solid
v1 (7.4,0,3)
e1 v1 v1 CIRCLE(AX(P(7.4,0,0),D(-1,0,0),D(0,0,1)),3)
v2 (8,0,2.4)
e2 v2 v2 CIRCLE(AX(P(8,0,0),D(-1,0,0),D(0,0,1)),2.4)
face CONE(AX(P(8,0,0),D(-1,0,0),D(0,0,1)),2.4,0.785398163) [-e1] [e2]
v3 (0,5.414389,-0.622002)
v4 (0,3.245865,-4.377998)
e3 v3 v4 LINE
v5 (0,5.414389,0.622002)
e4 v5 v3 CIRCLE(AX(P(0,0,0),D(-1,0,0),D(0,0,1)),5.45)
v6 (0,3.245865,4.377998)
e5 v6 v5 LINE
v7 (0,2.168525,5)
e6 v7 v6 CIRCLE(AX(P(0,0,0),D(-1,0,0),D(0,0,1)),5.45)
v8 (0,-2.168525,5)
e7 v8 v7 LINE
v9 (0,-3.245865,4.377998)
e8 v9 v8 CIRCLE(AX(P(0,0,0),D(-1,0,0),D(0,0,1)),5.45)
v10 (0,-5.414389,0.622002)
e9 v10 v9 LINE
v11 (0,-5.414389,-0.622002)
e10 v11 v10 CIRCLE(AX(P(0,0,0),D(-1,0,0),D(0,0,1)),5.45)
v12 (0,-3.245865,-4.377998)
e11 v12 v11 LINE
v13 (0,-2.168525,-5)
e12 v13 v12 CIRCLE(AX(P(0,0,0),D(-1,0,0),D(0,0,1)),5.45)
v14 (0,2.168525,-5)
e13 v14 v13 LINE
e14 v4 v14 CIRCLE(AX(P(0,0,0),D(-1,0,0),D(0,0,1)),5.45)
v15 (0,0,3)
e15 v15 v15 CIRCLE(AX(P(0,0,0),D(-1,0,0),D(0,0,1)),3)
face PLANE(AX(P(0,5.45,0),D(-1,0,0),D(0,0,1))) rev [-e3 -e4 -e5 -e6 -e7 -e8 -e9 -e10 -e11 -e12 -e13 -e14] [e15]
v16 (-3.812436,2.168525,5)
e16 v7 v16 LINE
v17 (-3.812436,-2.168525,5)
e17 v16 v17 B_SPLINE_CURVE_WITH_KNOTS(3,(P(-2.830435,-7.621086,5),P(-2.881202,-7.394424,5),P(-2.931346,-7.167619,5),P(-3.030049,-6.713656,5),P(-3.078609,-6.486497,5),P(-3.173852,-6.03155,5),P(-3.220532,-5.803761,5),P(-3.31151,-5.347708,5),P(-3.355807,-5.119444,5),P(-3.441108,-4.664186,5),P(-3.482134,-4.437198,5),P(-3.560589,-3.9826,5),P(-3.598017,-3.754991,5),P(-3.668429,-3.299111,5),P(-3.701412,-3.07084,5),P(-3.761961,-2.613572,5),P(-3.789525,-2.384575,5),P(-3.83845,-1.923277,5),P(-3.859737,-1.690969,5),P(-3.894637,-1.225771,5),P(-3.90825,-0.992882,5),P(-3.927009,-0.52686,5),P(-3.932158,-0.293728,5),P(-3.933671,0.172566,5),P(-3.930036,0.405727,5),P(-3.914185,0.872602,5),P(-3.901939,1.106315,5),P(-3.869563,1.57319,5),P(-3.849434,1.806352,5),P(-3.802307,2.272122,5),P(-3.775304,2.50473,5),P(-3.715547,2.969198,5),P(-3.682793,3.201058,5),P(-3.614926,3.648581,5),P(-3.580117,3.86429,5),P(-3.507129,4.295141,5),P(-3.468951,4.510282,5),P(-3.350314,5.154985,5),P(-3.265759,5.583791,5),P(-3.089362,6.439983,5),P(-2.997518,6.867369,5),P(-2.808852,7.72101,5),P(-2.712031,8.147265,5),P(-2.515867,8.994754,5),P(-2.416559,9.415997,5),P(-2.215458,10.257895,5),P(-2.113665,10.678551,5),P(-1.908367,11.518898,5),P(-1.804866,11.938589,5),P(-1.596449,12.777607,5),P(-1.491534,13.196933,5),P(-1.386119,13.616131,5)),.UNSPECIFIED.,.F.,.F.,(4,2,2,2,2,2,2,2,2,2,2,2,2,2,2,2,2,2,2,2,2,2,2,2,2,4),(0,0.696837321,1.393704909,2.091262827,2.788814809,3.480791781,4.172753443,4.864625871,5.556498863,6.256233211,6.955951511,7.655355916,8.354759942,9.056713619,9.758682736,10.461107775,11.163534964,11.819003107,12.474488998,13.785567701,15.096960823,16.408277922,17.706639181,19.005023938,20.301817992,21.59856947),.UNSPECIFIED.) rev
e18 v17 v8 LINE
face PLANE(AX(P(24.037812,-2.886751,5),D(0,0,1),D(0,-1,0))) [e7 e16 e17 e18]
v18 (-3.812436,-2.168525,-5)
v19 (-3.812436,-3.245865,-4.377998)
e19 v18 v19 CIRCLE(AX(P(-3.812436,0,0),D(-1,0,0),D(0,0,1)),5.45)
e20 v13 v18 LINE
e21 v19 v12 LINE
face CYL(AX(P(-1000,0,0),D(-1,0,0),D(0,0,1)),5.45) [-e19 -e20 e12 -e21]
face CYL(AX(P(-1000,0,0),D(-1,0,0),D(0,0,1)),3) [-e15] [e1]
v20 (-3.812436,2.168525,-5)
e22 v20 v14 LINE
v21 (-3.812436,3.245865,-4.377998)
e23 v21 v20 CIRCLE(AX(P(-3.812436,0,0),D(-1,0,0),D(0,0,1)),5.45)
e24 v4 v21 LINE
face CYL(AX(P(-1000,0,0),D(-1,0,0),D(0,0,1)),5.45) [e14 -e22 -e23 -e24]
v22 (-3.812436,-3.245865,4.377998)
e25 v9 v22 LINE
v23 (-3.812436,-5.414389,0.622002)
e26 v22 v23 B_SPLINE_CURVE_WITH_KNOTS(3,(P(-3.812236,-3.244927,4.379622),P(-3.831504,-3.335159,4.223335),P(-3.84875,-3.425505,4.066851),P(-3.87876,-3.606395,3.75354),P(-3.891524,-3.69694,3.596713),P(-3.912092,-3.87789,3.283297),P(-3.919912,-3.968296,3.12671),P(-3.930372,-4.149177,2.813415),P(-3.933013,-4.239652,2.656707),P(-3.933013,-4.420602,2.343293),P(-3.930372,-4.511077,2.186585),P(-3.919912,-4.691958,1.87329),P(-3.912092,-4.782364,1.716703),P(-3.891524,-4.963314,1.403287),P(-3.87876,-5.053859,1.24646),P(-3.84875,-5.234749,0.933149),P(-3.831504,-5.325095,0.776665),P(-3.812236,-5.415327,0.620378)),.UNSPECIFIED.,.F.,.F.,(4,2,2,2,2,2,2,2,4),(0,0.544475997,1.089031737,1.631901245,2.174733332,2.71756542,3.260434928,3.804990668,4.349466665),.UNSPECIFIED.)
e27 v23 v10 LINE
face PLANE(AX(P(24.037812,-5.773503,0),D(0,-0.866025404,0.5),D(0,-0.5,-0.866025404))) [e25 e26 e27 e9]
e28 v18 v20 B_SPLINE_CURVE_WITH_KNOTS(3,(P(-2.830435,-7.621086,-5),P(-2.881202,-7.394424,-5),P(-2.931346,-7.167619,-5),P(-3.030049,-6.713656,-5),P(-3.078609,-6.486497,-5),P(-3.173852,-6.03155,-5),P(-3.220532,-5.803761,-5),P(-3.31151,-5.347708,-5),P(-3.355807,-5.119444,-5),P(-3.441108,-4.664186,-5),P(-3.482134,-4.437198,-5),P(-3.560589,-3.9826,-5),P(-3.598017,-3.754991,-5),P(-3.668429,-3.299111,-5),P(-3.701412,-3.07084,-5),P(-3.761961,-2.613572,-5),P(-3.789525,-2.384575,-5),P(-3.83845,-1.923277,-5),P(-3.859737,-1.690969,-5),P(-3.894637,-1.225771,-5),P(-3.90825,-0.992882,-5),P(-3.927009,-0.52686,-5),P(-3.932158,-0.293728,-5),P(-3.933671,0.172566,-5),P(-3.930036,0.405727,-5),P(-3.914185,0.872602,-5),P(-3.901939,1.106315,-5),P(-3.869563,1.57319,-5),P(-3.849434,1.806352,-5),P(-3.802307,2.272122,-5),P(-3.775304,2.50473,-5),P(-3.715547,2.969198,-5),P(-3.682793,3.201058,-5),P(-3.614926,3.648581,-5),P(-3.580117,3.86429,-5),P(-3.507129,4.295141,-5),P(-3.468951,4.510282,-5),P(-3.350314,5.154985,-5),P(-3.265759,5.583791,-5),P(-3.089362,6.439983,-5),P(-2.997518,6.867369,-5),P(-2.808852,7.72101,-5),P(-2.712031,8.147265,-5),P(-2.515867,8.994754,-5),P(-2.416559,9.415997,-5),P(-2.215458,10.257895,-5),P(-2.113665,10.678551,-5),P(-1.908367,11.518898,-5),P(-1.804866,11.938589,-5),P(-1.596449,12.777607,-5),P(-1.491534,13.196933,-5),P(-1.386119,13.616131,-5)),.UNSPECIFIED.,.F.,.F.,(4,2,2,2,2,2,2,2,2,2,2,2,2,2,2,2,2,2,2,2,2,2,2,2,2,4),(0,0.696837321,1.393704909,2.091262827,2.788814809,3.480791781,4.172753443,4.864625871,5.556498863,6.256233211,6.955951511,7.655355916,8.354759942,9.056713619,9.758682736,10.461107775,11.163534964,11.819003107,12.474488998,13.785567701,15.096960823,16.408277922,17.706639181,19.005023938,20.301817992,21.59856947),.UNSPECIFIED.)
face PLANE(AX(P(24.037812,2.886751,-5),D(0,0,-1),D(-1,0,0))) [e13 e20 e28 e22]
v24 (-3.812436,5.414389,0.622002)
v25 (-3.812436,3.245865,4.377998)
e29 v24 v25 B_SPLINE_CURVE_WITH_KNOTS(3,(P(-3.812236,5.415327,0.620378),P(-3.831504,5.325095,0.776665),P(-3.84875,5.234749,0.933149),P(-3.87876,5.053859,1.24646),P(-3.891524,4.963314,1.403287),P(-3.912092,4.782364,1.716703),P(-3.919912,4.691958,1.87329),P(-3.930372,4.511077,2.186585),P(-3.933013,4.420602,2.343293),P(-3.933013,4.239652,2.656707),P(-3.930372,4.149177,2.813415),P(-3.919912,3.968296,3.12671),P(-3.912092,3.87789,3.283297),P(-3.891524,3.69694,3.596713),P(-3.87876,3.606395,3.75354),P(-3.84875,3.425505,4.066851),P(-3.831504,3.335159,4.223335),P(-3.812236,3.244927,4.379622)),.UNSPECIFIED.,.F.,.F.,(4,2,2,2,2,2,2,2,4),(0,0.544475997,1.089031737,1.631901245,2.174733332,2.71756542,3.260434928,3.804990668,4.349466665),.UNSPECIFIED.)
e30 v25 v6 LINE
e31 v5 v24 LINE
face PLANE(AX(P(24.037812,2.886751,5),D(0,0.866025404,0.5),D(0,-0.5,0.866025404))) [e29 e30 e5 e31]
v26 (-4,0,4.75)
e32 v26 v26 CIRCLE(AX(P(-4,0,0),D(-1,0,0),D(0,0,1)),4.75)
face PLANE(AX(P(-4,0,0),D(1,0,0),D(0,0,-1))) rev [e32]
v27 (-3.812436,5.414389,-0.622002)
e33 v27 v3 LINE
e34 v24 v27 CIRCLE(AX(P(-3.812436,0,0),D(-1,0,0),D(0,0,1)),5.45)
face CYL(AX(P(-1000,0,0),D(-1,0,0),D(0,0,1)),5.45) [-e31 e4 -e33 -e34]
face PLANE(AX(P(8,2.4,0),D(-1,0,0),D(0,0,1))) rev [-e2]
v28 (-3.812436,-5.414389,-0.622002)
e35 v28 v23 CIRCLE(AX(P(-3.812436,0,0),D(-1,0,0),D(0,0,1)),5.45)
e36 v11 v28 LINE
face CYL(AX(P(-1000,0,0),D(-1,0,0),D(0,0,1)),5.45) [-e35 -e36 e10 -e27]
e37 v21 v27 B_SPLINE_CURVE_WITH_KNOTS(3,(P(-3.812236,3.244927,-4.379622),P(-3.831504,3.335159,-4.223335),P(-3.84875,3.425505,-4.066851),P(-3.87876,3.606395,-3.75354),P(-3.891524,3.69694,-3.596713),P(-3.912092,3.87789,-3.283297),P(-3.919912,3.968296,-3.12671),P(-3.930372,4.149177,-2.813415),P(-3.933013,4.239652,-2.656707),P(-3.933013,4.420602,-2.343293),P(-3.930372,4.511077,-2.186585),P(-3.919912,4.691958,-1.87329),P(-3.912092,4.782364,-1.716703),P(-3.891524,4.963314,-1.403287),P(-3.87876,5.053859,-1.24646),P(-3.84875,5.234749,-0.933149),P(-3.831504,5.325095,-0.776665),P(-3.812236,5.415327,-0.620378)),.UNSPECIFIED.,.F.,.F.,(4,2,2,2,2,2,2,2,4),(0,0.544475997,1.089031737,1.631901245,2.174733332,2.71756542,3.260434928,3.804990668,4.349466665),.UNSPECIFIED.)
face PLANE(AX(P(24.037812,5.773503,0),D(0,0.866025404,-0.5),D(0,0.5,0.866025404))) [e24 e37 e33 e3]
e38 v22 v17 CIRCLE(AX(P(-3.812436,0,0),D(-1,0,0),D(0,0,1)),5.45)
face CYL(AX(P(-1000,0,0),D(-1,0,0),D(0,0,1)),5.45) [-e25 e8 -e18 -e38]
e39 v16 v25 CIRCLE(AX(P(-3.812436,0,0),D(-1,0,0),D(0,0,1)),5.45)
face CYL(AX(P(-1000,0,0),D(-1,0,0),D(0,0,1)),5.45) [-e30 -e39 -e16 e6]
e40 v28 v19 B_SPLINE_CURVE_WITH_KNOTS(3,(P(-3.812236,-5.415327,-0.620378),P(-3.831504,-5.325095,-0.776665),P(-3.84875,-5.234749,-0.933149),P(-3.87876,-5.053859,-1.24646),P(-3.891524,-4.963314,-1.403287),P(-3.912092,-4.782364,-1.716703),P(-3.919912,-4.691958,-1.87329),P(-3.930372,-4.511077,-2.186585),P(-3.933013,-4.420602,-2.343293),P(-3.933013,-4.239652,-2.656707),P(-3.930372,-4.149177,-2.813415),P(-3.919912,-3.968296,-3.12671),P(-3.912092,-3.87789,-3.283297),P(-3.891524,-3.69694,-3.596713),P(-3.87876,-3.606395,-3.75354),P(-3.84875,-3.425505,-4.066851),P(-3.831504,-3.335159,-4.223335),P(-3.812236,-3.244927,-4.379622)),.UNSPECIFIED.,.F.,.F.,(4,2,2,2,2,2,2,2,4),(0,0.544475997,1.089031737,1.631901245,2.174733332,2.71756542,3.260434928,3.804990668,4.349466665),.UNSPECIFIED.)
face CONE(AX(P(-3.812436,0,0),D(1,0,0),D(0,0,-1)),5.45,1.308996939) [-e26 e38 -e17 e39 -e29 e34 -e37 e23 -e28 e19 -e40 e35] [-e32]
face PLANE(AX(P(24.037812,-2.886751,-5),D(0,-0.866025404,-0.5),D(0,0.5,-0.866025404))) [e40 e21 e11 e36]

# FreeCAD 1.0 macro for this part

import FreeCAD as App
import Part
import Sketcher

V = App.Vector
Q = App.Units.Quantity


def add_polygon(sketch, points):
    """Adds a closed chain of lines whose ends are joined by coincident constraints."""
    first, n = sketch.GeometryCount, len(points)
    for a, b in zip(points, points[1:] + points[:1]):
        sketch.addGeometry(Part.LineSegment(App.Vector(*a, 0), App.Vector(*b, 0)), False)
    for i in range(n):
        sketch.addConstraint(Sketcher.Constraint("Coincident", first + i, 2, first + (i + 1) % n, 1))

doc = App.newDocument("Part")
body = doc.addObject("PartDesign::Body", "Body")

# Sketch on XY plane
sketch1 = body.newObject("Sketcher::SketchObject", "Sketch")
sketch1.AttachmentSupport = (doc.getObject("XY_Plane"), [""])
sketch1.MapMode = "FlatFace"
add_polygon(sketch1, [(-4, 4.8), (-4, 0), (8, 0), (8, 2.4), (7.4, 3), (0, 3), (0, 5.5), (-3.8, 5.5)])  # lines 0-7
sketch1.addConstraint([
    Sketcher.Constraint("Vertical", 0),
    Sketcher.Constraint("Horizontal", 1),
    Sketcher.Constraint("Vertical", 2),
    Sketcher.Constraint("Horizontal", 4),
    Sketcher.Constraint("Vertical", 5),
    Sketcher.Constraint("Horizontal", 6),
    Sketcher.Constraint("PointOnObject", 0, 2, -1),
    Sketcher.Constraint("PointOnObject", 4, 2, -2),
    Sketcher.Constraint("DistanceX", 1, 1, 1, 2, Q("12 mm")),
    Sketcher.Constraint("Angle", 3, Q("135 deg")),
    Sketcher.Constraint("Angle", 7, Q("-105 deg")),
    Sketcher.Constraint("DistanceX", 4, 2, 4, 1, Q("7.4 mm")),
    Sketcher.Constraint("DistanceY", 2, 1, 2, 2, Q("2.4 mm")),
    Sketcher.Constraint("DistanceX", 0, 2, -1, 1, Q("4 mm")),
    Sketcher.Constraint("DistanceY", 0, 2, 0, 1, Q("4.75 mm")),
    Sketcher.Constraint("DistanceY", 5, 1, 5, 2, Q("2.45 mm")),
])
revolution = body.newObject("PartDesign::Revolution", "Revolution")
revolution.Profile = sketch1
revolution.ReferenceAxis = (sketch1, ["H_Axis"])
revolution.Angle = 360

# Sketch on YZ plane
sketch2 = body.newObject("Sketcher::SketchObject", "Sketch001")
sketch2.AttachmentSupport = (doc.getObject("YZ_Plane"), [""])
sketch2.MapMode = "FlatFace"
sketch2.AttachmentOffset = App.Placement(V(0, 0, -4), App.Rotation())
add_polygon(sketch2, [(8, -8), (-8, -8), (-8, 8), (8, 8)])  # lines 0-3
add_polygon(sketch2, [(3, -5), (6, 0), (3, 5), (-3, 5), (-6, 0), (-3, -5)])  # lines 4-9
sketch2.addConstraint([
    Sketcher.Constraint("Horizontal", 0),
    Sketcher.Constraint("Vertical", 1),
    Sketcher.Constraint("Horizontal", 2),
    Sketcher.Constraint("Vertical", 3),
    Sketcher.Constraint("Horizontal", 6),
    Sketcher.Constraint("Horizontal", 9),
    Sketcher.Constraint("Symmetric", 0, 2, 2, 2, -1, 1),
    Sketcher.Constraint("Symmetric", 4, 2, 7, 2, -1, 1),
    Sketcher.Constraint("Symmetric", 5, 2, 8, 2, -1, 1),
    Sketcher.Constraint("PointOnObject", 4, 2, -1),
    Sketcher.Constraint("Parallel", 4, 7),
    Sketcher.Constraint("Vertical", 6, 2, 8, 2),
    Sketcher.Constraint("Equal", 2, 1),
    Sketcher.Constraint("Angle", 4, Q("60 deg")),
    Sketcher.Constraint("DistanceY", -1, 1, 5, 2, Q("5 mm")),
    Sketcher.Constraint("DistanceX", 0, 2, 0, 1, Q("16.808 mm")),
    Sketcher.Constraint("DistanceX", 6, 2, 6, 1, Q("5.773503 mm")),
])
pocket1 = body.newObject("PartDesign::Pocket", "Pocket")
pocket1.Profile = sketch2
pocket1.Length = 12
pocket1.Reversed = True

doc.recompute()
